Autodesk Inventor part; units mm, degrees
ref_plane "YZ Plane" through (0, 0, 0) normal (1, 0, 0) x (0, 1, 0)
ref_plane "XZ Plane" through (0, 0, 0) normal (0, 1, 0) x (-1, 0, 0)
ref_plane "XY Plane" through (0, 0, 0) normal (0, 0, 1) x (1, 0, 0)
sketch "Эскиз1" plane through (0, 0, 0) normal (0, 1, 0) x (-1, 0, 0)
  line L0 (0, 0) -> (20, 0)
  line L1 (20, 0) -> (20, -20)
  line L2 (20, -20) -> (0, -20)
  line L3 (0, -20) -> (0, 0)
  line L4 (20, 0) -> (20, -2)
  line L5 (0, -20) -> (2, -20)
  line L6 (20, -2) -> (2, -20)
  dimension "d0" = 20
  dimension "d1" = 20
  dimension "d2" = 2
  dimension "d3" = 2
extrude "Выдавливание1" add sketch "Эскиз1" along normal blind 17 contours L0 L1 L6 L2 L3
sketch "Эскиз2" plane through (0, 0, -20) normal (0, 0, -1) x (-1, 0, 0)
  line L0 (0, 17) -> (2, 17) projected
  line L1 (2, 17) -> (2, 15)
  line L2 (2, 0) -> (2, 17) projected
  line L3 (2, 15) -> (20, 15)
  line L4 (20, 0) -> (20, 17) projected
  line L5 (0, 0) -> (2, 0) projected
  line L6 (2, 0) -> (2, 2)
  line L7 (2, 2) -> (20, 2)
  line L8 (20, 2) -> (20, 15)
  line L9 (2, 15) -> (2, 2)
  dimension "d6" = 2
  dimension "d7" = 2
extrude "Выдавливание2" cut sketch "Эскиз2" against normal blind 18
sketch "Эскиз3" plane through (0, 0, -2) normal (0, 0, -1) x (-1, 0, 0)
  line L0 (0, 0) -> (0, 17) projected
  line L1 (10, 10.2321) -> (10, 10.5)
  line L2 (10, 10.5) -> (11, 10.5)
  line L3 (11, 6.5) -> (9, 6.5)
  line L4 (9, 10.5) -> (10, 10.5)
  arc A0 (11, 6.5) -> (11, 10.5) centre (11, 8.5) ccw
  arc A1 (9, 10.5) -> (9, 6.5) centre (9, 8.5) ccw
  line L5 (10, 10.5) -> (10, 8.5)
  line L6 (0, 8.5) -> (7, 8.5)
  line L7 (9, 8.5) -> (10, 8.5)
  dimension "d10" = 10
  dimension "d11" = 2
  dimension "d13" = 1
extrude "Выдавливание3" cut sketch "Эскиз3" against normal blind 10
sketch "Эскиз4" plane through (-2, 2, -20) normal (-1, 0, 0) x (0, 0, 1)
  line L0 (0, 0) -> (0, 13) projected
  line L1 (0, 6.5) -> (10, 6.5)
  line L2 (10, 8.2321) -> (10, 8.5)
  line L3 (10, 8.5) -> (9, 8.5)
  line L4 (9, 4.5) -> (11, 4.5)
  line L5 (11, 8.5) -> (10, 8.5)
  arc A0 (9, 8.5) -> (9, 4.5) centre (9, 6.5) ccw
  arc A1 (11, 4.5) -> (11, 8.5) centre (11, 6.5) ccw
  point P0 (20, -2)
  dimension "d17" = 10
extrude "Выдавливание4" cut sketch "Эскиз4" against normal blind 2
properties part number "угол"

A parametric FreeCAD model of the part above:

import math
import FreeCAD as App
import Part
import Sketcher

V = App.Vector

doc = App.newDocument("Part")
body = doc.addObject("PartDesign::Body", "Body")

# Sketch on XZ plane
sketch1 = doc.addObject("Sketcher::SketchObject", "Sketch")
body.addObject(sketch1)
sketch1.AttachmentSupport = (doc.XZ_Plane, [""])
sketch1.MapMode = "FlatFace"
sketch1.addGeometry(Part.LineSegment(V(-20, 0, 0), V(0, 0, 0)), False)
sketch1.addGeometry(Part.LineSegment(V(0, 0, 0), V(0, -20, 0)), False)
sketch1.addGeometry(Part.LineSegment(V(0, -20, 0), V(-2, -20, 0)), False)
sketch1.addGeometry(Part.LineSegment(V(-2, -20, 0), V(-20, -2, 0)), False)
sketch1.addGeometry(Part.LineSegment(V(-20, -2, 0), V(-20, 0, 0)), False)
sketch1.addConstraint(Sketcher.Constraint("Coincident", 0, 2, 1, 1))
sketch1.addConstraint(Sketcher.Constraint("Coincident", 1, 2, 2, 1))
sketch1.addConstraint(Sketcher.Constraint("Coincident", 2, 2, 3, 1))
sketch1.addConstraint(Sketcher.Constraint("Coincident", 3, 2, 4, 1))
sketch1.addConstraint(Sketcher.Constraint("Coincident", 4, 2, 0, 1))
sketch1.addConstraint(Sketcher.Constraint("Horizontal", 0))
sketch1.addConstraint(Sketcher.Constraint("Vertical", 1))
sketch1.addConstraint(Sketcher.Constraint("Horizontal", 2))
sketch1.addConstraint(Sketcher.Constraint("Vertical", 4))
sketch1.addConstraint(Sketcher.Constraint("Coincident", 0, 2, -1, 1))
sketch1.addConstraint(Sketcher.Constraint("Equal", 0, 1))
sketch1.addConstraint(Sketcher.Constraint("Equal", 2, 4))
sketch1.addConstraint(Sketcher.Constraint("DistanceX", 0, 1, 0, 2, 20.0))
sketch1.addConstraint(Sketcher.Constraint("DistanceX", 2, 2, 2, 1, 2.0))
pad1 = doc.addObject("PartDesign::Pad", "Pad")
body.addObject(pad1)
pad1.Profile = sketch1
pad1.Length = 17
pad1.Reversed = True

# Sketch on XY plane
sketch2 = doc.addObject("Sketcher::SketchObject", "Sketch001")
body.addObject(sketch2)
sketch2.AttachmentSupport = (doc.XY_Plane, [""])
sketch2.MapMode = "FlatFace"
sketch2.AttachmentOffset = App.Placement(V(0, 0, -20), App.Rotation())
sketch2.addGeometry(Part.LineSegment(V(-2, 15, 0), V(-2, 2, 0)), False)
sketch2.addGeometry(Part.LineSegment(V(-2, 2, 0), V(-20, 2, 0)), False)
sketch2.addGeometry(Part.LineSegment(V(-20, 2, 0), V(-20, 15, 0)), False)
sketch2.addGeometry(Part.LineSegment(V(-20, 15, 0), V(-2, 15, 0)), False)
sketch2.addConstraint(Sketcher.Constraint("Coincident", 0, 2, 1, 1))
sketch2.addConstraint(Sketcher.Constraint("Coincident", 1, 2, 2, 1))
sketch2.addConstraint(Sketcher.Constraint("Coincident", 2, 2, 3, 1))
sketch2.addConstraint(Sketcher.Constraint("Coincident", 3, 2, 0, 1))
sketch2.addConstraint(Sketcher.Constraint("Vertical", 0))
sketch2.addConstraint(Sketcher.Constraint("Horizontal", 1))
sketch2.addConstraint(Sketcher.Constraint("Vertical", 2))
sketch2.addConstraint(Sketcher.Constraint("Horizontal", 3))
sketch2.addConstraint(Sketcher.Constraint("DistanceX", 0, 2, -1, 1, 2.0))
sketch2.addConstraint(Sketcher.Constraint("DistanceY", -1, 1, 0, 2, 2.0))
sketch2.addConstraint(Sketcher.Constraint("DistanceX", 1, 2, 1, 1, 18.0))
sketch2.addConstraint(Sketcher.Constraint("DistanceY", 0, 2, 0, 1, 13.0))
pocket1 = doc.addObject("PartDesign::Pocket", "Pocket")
body.addObject(pocket1)
pocket1.Profile = sketch2
pocket1.Length = 18
pocket1.Reversed = True

# Sketch on XY plane
sketch3 = doc.addObject("Sketcher::SketchObject", "Sketch002")
body.addObject(sketch3)
sketch3.AttachmentSupport = (doc.XY_Plane, [""])
sketch3.MapMode = "FlatFace"
sketch3.AttachmentOffset = App.Placement(V(0, 0, -2), App.Rotation())
sketch3.addGeometry(Part.LineSegment(V(-11, 10.5, 0), V(-9, 10.5, 0)), False)
sketch3.addGeometry(Part.ArcOfCircle(Part.Circle(V(-9, 8.5, 0), V(0, 0, 1), 2), math.radians(-90), math.radians(90)), False)
sketch3.addGeometry(Part.LineSegment(V(-9, 6.5, 0), V(-11, 6.5, 0)), False)
sketch3.addGeometry(Part.ArcOfCircle(Part.Circle(V(-11, 8.5, 0), V(0, 0, 1), 2), math.radians(90), math.radians(270)), False)
sketch3.addConstraint(Sketcher.Constraint("Tangent", 0, 2, 1, 2))
sketch3.addConstraint(Sketcher.Constraint("Tangent", 1, 1, 2, 1))
sketch3.addConstraint(Sketcher.Constraint("Tangent", 2, 2, 3, 2))
sketch3.addConstraint(Sketcher.Constraint("Tangent", 3, 1, 0, 1))
sketch3.addConstraint(Sketcher.Constraint("Horizontal", 0))
sketch3.addConstraint(Sketcher.Constraint("Horizontal", 2))
sketch3.addConstraint(Sketcher.Constraint("Radius", 1, 2.0))
sketch3.addConstraint(Sketcher.Constraint("DistanceX", 0, 1, 0, 2, 2.0))
sketch3.addConstraint(Sketcher.Constraint("DistanceX", 1, 3, -1, 1, 9.0))
sketch3.addConstraint(Sketcher.Constraint("DistanceY", -1, 1, 1, 3, 8.5))
pocket2 = doc.addObject("PartDesign::Pocket", "Pocket001")
body.addObject(pocket2)
pocket2.Profile = sketch3
pocket2.Length = 10
pocket2.Reversed = True

# Sketch on YZ plane
sketch4 = doc.addObject("Sketcher::SketchObject", "Sketch003")
body.addObject(sketch4)
sketch4.AttachmentSupport = (doc.YZ_Plane, [""])
sketch4.MapMode = "FlatFace"
sketch4.AttachmentOffset = App.Placement(V(0, 0, -2), App.Rotation())
sketch4.addGeometry(Part.LineSegment(V(10.5, -9, 0), V(10.5, -11, 0)), False)
sketch4.addGeometry(Part.ArcOfCircle(Part.Circle(V(8.5, -11, 0), V(0, 0, 1), 2), math.radians(180), math.radians(360)), False)
sketch4.addGeometry(Part.LineSegment(V(6.5, -11, 0), V(6.5, -9, 0)), False)
sketch4.addGeometry(Part.ArcOfCircle(Part.Circle(V(8.5, -9, 0), V(0, 0, 1), 2), math.radians(0), math.radians(180)), False)
sketch4.addConstraint(Sketcher.Constraint("Tangent", 0, 2, 1, 2))
sketch4.addConstraint(Sketcher.Constraint("Tangent", 1, 1, 2, 1))
sketch4.addConstraint(Sketcher.Constraint("Tangent", 2, 2, 3, 2))
sketch4.addConstraint(Sketcher.Constraint("Tangent", 3, 1, 0, 1))
sketch4.addConstraint(Sketcher.Constraint("Vertical", 0))
sketch4.addConstraint(Sketcher.Constraint("Vertical", 2))
sketch4.addConstraint(Sketcher.Constraint("Radius", 1, 2.0))
sketch4.addConstraint(Sketcher.Constraint("DistanceY", 0, 2, 0, 1, 2.0))
sketch4.addConstraint(Sketcher.Constraint("DistanceY", 1, 3, -1, 1, 11.0))
sketch4.addConstraint(Sketcher.Constraint("DistanceX", -1, 1, 1, 3, 8.5))
pocket3 = doc.addObject("PartDesign::Pocket", "Pocket002")
body.addObject(pocket3)
pocket3.Profile = sketch4
pocket3.Length = 2
pocket3.Reversed = True

doc.recompute()
